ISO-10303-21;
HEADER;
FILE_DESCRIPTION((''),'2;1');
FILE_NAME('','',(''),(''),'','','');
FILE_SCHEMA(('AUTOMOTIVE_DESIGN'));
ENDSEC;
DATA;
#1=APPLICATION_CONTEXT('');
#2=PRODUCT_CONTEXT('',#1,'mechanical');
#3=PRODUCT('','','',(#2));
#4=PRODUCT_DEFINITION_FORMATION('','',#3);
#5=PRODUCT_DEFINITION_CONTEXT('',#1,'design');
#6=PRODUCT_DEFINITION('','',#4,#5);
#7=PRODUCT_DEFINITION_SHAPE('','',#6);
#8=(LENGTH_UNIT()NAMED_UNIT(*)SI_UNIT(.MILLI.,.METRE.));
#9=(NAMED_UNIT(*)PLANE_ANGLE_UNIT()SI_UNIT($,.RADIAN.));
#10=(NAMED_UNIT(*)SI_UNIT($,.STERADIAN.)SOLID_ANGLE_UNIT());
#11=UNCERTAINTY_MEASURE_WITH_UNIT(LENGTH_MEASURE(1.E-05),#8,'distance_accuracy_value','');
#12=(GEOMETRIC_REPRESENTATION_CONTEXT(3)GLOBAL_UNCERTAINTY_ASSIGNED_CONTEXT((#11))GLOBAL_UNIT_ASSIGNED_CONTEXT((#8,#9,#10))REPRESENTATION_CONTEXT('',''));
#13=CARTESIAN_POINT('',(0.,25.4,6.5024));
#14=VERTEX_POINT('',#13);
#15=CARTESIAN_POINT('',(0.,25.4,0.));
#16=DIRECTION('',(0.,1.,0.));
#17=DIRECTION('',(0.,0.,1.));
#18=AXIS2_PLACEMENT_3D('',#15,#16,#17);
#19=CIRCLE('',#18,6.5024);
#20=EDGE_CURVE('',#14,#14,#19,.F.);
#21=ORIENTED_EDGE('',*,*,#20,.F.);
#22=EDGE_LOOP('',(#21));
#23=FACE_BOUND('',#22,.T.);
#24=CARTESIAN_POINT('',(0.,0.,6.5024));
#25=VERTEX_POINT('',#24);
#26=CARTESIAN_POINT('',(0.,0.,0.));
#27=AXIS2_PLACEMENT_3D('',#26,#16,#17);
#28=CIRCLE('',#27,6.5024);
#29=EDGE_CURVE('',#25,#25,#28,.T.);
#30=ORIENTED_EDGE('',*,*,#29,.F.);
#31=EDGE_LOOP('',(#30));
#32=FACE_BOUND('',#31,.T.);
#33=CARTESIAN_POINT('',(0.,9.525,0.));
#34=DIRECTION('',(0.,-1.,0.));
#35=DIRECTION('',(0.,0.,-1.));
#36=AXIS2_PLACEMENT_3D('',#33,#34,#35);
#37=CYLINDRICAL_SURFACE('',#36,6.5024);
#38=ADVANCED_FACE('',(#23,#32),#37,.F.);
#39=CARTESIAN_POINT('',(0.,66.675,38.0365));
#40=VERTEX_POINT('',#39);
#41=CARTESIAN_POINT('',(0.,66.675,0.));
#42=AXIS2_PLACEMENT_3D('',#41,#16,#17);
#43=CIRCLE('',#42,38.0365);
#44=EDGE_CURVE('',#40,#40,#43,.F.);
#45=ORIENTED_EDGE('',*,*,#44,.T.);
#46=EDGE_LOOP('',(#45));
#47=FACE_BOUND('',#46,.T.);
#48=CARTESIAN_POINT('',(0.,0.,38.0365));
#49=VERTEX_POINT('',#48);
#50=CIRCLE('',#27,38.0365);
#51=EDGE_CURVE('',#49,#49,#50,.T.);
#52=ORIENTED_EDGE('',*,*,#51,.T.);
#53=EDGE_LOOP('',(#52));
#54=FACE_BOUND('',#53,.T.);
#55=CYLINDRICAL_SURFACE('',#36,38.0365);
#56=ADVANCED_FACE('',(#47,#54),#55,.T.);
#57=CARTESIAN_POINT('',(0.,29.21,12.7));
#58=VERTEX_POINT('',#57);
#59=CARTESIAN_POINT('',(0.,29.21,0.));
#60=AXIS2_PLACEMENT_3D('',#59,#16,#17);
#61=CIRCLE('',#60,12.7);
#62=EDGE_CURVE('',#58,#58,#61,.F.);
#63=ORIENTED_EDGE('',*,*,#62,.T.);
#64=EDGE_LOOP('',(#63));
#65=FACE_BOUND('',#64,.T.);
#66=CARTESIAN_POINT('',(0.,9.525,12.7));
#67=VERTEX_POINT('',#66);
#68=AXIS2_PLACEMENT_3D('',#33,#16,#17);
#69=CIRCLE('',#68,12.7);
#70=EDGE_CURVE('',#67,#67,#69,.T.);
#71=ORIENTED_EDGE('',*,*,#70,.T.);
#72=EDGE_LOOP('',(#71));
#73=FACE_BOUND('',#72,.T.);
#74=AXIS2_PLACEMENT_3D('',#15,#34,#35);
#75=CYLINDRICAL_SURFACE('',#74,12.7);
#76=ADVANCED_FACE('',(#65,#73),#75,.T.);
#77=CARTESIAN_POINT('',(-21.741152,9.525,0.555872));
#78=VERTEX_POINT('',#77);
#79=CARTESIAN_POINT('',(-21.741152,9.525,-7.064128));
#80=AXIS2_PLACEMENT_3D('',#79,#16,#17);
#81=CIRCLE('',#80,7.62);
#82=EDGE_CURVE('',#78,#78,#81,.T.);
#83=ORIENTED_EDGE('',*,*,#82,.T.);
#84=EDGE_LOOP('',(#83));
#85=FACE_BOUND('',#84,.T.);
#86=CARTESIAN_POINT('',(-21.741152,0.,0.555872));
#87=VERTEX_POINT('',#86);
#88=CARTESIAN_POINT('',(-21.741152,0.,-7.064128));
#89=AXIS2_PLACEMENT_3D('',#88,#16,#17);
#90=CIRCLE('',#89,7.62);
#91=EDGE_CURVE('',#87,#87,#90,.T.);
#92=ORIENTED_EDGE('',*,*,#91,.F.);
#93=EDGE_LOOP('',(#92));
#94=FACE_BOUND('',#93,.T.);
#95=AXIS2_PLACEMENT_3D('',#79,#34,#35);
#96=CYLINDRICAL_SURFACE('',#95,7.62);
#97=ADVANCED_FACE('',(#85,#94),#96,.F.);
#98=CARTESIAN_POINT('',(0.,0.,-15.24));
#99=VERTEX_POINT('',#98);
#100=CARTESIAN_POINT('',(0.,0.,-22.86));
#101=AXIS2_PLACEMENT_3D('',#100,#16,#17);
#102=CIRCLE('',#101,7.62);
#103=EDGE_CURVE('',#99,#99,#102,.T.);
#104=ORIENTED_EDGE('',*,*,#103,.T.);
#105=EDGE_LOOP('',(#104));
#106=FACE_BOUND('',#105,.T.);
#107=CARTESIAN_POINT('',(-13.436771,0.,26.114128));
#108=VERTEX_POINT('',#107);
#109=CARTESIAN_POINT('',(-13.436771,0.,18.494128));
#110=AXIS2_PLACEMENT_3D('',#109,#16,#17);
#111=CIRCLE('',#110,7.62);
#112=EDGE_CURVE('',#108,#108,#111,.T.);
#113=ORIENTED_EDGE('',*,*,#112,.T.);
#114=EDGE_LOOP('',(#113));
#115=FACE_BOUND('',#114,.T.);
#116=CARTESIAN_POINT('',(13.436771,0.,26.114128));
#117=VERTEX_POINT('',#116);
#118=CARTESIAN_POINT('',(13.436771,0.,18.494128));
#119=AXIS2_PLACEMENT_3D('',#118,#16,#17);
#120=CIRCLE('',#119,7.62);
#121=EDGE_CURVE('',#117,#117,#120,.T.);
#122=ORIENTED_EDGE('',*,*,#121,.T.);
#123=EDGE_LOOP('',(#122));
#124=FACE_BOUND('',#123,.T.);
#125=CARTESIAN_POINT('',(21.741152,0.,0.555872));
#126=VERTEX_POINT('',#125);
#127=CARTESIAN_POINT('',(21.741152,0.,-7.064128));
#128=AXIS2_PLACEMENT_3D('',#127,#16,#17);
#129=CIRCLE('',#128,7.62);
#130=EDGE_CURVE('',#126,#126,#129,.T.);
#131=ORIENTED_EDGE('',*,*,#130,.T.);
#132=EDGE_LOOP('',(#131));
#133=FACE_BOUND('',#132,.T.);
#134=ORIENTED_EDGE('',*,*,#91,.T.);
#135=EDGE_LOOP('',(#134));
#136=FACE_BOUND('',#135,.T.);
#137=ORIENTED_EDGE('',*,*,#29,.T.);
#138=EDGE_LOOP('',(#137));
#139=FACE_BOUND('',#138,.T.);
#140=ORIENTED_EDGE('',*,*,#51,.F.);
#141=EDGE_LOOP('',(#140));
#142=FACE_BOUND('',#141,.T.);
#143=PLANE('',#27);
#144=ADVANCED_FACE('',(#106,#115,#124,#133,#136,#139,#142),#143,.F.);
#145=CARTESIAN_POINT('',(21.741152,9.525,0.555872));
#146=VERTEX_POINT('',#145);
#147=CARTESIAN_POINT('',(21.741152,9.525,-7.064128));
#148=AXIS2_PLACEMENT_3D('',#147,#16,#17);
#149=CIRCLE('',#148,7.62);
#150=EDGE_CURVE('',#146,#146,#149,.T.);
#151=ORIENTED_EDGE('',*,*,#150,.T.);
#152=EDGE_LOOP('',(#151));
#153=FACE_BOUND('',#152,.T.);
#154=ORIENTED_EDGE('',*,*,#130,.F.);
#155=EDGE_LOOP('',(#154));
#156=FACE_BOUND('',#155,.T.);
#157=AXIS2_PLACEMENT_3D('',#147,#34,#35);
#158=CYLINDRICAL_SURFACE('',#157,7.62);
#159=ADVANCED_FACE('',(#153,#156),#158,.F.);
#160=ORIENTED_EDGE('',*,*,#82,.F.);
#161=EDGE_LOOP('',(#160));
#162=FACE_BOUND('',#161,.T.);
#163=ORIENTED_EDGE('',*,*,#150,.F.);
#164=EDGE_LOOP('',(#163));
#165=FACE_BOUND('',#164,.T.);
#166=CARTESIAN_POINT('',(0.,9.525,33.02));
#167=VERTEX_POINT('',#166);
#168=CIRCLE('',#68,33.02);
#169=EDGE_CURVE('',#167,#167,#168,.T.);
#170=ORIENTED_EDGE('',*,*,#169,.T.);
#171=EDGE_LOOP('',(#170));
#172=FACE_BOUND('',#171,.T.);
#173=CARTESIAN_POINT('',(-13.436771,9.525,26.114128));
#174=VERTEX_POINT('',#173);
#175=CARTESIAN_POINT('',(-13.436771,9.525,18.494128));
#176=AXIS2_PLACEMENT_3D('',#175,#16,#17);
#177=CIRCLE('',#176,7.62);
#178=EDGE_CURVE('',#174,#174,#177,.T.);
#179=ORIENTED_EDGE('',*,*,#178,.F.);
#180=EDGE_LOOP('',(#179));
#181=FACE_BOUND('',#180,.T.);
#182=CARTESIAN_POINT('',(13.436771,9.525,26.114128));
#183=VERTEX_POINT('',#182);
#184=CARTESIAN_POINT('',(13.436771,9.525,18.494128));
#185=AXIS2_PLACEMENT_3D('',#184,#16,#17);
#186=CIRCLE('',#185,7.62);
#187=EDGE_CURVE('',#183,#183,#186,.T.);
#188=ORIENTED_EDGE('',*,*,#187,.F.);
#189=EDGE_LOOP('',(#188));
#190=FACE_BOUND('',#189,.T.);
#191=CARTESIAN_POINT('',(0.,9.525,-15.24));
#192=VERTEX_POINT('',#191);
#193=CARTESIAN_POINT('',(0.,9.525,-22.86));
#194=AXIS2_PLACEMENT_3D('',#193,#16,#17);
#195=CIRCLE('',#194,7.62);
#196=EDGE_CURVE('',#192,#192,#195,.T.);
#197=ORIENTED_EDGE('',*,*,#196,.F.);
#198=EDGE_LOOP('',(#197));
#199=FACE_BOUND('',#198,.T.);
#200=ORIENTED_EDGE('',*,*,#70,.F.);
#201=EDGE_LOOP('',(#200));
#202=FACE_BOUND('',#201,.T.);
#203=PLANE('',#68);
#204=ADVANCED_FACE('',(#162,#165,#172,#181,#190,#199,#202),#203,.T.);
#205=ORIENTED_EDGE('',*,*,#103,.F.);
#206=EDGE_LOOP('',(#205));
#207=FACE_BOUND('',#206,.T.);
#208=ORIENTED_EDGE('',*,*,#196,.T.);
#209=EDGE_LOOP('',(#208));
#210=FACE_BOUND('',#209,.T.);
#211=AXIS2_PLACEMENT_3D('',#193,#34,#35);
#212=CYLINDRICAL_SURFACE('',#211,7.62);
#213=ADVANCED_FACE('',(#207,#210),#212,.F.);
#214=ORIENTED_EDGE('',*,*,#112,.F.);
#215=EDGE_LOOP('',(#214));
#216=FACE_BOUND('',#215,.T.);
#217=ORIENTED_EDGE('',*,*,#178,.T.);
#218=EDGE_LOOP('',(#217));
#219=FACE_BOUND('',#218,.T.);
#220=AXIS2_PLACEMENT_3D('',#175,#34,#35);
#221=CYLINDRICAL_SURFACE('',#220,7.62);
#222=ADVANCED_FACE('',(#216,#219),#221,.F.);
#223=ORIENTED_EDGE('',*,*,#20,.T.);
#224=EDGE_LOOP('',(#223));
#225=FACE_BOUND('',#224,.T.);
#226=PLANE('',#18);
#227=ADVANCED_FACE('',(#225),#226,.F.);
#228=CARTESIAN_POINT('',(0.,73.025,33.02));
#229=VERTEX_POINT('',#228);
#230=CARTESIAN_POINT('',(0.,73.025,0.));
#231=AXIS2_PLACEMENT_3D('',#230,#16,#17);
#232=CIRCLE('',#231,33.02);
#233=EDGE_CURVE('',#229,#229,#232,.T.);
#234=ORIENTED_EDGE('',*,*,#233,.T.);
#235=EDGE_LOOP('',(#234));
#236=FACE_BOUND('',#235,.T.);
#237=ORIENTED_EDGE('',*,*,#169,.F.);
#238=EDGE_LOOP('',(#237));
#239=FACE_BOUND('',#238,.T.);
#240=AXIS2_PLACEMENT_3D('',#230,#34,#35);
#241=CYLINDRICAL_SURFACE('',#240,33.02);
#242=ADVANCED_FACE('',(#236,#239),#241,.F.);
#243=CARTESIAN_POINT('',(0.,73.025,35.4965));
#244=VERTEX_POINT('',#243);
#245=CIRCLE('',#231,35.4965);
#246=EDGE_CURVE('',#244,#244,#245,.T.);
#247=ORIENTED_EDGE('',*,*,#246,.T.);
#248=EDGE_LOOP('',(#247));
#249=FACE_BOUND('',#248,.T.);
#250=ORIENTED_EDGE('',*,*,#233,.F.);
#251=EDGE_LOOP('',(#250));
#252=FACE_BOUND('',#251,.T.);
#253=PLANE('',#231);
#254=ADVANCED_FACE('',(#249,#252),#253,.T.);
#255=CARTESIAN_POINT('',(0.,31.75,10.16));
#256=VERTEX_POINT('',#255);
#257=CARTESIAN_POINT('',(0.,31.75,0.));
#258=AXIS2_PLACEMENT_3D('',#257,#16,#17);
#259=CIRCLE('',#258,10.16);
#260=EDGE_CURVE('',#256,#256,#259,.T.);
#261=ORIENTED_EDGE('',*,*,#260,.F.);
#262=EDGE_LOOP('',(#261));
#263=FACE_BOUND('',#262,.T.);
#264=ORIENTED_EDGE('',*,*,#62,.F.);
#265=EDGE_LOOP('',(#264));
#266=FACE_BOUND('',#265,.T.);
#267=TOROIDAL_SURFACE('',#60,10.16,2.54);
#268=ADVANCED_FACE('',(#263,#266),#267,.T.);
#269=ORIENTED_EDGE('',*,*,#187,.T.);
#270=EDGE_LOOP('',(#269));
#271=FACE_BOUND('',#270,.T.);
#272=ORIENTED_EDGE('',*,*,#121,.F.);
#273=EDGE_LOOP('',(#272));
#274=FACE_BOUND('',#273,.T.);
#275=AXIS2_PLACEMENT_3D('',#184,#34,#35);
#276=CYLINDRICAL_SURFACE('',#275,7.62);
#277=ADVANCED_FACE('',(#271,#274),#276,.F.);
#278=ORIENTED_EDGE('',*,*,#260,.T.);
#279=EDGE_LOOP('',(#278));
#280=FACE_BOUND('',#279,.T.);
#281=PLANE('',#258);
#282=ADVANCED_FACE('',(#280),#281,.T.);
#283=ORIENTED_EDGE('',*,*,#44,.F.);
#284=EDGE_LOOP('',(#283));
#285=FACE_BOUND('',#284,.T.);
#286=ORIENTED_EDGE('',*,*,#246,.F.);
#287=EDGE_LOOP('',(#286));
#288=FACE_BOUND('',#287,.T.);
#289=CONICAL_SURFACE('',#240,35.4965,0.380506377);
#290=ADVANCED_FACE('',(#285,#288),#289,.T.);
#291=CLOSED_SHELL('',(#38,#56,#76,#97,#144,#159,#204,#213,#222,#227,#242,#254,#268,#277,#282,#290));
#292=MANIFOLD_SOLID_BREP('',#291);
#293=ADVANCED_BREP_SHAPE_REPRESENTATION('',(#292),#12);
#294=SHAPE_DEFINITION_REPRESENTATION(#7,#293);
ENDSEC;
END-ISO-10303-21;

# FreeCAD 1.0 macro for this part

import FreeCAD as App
import Part
import Sketcher
from FreeCAD import Vector
Q = App.Units.Quantity


def edges_at(feature, points):
    """Names of the edges that pass closest to the given points."""
    edges = feature.Shape.Edges
    near = lambda p: min(range(len(edges)), key=lambda i: edges[i].distToShape(Part.Vertex(*p))[0])
    return sorted({f"Edge{near(p) + 1}" for p in points})

doc = App.newDocument("Part")
body = doc.addObject("PartDesign::Body", "Body")

# Sketch on XZ plane
sketch1 = body.newObject("Sketcher::SketchObject", "Sketch")
sketch1.AttachmentSupport = (doc.getObject("XZ_Plane"), [""])
sketch1.MapMode = "FlatFace"
sketch1.addGeometry([
    Part.Circle(Vector(0, 0, 0), Vector(0, 0, 1), 38.0365),  # 0
    Part.Circle(Vector(-13.436771, 18.494128, 0), Vector(0, 0, 1), 7.62),  # 1
    Part.Circle(Vector(0, 0, 0), Vector(0, 0, 1), 6.5024),  # 2
    Part.Circle(Vector(13.436771, 18.494128, 0), Vector(0, 0, 1), 7.62),  # 3
    Part.Circle(Vector(-21.741152, -7.064128, 0), Vector(0, 0, 1), 7.62),  # 4
    Part.Circle(Vector(0, -22.86, 0), Vector(0, 0, 1), 7.62),  # 5
    Part.Circle(Vector(21.741152, -7.064128, 0), Vector(0, 0, 1), 7.62),  # 6
], False)
sketch1.addConstraint([
    Sketcher.Constraint("Coincident", 0, 3, -1, 1),
    Sketcher.Constraint("Coincident", 2, 3, -1, 1),
    Sketcher.Constraint("Equal", 1, 3),
    Sketcher.Constraint("Equal", 3, 4),
    Sketcher.Constraint("Equal", 4, 5),
    Sketcher.Constraint("Equal", 5, 6),
    Sketcher.Constraint("Symmetric", 1, 3, 3, 3, -2),
    Sketcher.Constraint("Symmetric", 4, 3, 6, 3, -2),
    Sketcher.Constraint("PointOnObject", 5, 3, -2),
    Sketcher.Constraint("Diameter", 1, Q("0.6 in")),
    Sketcher.Constraint("Diameter", 0, Q("2.995 in")),
    Sketcher.Constraint("Diameter", 2, Q("0.512 in")),
    Sketcher.Constraint("DistanceY", 5, 3, -1, 1, Q("0.9 in")),
    Sketcher.Constraint("DistanceX", 1, 3, -1, 1, 13.436771),
    Sketcher.Constraint("DistanceY", -1, 1, 1, 3, 18.494128),
    Sketcher.Constraint("DistanceX", 4, 3, -1, 1, 21.741152),
    Sketcher.Constraint("DistanceY", 4, 3, -1, 1, 7.064128),
])
pad1 = body.newObject("PartDesign::Pad", "Pad")
pad1.Profile = sketch1
pad1.Length = Q("0.375 in")
pad1.Reversed = True

# Sketch on XZ plane
sketch2 = body.newObject("Sketcher::SketchObject", "Sketch001")
sketch2.AttachmentSupport = (doc.getObject("XZ_Plane"), [""])
sketch2.MapMode = "FlatFace"
sketch2.AttachmentOffset = App.Placement(Vector(0, 0, -0.375 * 25.4), App.Rotation())
sketch2.addGeometry([
    Part.Circle(Vector(0, 0, 0), Vector(0, 0, 1), 38.0365),
    Part.Circle(Vector(0, 0, 0), Vector(0, 0, 1), 33.02),
], False)
sketch2.addConstraint([
    Sketcher.Constraint("Coincident", 0, 3, -1, 1),
    Sketcher.Constraint("Coincident", 1, 3, -1, 1),
    Sketcher.Constraint("Diameter", 1, Q("2.6 in")),
    Sketcher.Constraint("Diameter", 0, Q("2.995 in")),
])
pad2 = body.newObject("PartDesign::Pad", "Pad001")
pad2.Profile = sketch2
pad2.Length = Q("2.5 in")
pad2.Reversed = True

# Sketch on XZ plane
sketch3 = body.newObject("Sketcher::SketchObject", "Sketch002")
sketch3.AttachmentSupport = (doc.getObject("XZ_Plane"), [""])
sketch3.MapMode = "FlatFace"
sketch3.AttachmentOffset = App.Placement(Vector(0, 0, -0.375 * 25.4), App.Rotation())
sketch3.addGeometry([
    Part.Circle(Vector(0, 0, 0), Vector(0, 0, 1), 12.7),
    Part.Circle(Vector(0, 0, 0), Vector(0, 0, 1), 6.5024),
], False)
sketch3.addConstraint([
    Sketcher.Constraint("Coincident", 0, 3, -1, 1),
    Sketcher.Constraint("Coincident", 1, 3, -1, 1),
    Sketcher.Constraint("Diameter", 0, Q("1 in")),
    Sketcher.Constraint("Diameter", 1, Q("0.512 in")),
])
pad3 = body.newObject("PartDesign::Pad", "Pad002")
pad3.Profile = sketch3
pad3.Length = Q("0.625 in")
pad3.Reversed = True
doc.recompute()

chamfer = body.newObject("PartDesign::Chamfer", "Chamfer")
chamfer.Base = (pad3, edges_at(pad3, [(-38.036, 73.025, 0)]))
chamfer.ChamferType = "Two distances"
chamfer.Size = Q("0.25 in")
chamfer.Size2 = Q("0.1 in")

# Sketch on XZ plane
sketch4 = body.newObject("Sketcher::SketchObject", "Sketch003")
sketch4.AttachmentSupport = (doc.getObject("XZ_Plane"), [""])
sketch4.MapMode = "FlatFace"
sketch4.AttachmentOffset = App.Placement(Vector(0, 0, -1 * 25.4), App.Rotation())
sketch4.addGeometry(Part.Circle(Vector(0, 0, 0), Vector(0, 0, 1), 12.7), False)
sketch4.addConstraint([
    Sketcher.Constraint("Coincident", 0, 3, -1, 1),
    Sketcher.Constraint("Diameter", 0, Q("1 in")),
])
pad4 = body.newObject("PartDesign::Pad", "Pad003")
pad4.Profile = sketch4
pad4.Length = Q("0.25 in")
pad4.Reversed = True
doc.recompute()

fillet = body.newObject("PartDesign::Fillet", "Fillet")
fillet.Base = (pad4, edges_at(pad4, [(-12.7, 31.75, 0)]))
fillet.Radius = Q("0.1 in")

doc.recompute()
